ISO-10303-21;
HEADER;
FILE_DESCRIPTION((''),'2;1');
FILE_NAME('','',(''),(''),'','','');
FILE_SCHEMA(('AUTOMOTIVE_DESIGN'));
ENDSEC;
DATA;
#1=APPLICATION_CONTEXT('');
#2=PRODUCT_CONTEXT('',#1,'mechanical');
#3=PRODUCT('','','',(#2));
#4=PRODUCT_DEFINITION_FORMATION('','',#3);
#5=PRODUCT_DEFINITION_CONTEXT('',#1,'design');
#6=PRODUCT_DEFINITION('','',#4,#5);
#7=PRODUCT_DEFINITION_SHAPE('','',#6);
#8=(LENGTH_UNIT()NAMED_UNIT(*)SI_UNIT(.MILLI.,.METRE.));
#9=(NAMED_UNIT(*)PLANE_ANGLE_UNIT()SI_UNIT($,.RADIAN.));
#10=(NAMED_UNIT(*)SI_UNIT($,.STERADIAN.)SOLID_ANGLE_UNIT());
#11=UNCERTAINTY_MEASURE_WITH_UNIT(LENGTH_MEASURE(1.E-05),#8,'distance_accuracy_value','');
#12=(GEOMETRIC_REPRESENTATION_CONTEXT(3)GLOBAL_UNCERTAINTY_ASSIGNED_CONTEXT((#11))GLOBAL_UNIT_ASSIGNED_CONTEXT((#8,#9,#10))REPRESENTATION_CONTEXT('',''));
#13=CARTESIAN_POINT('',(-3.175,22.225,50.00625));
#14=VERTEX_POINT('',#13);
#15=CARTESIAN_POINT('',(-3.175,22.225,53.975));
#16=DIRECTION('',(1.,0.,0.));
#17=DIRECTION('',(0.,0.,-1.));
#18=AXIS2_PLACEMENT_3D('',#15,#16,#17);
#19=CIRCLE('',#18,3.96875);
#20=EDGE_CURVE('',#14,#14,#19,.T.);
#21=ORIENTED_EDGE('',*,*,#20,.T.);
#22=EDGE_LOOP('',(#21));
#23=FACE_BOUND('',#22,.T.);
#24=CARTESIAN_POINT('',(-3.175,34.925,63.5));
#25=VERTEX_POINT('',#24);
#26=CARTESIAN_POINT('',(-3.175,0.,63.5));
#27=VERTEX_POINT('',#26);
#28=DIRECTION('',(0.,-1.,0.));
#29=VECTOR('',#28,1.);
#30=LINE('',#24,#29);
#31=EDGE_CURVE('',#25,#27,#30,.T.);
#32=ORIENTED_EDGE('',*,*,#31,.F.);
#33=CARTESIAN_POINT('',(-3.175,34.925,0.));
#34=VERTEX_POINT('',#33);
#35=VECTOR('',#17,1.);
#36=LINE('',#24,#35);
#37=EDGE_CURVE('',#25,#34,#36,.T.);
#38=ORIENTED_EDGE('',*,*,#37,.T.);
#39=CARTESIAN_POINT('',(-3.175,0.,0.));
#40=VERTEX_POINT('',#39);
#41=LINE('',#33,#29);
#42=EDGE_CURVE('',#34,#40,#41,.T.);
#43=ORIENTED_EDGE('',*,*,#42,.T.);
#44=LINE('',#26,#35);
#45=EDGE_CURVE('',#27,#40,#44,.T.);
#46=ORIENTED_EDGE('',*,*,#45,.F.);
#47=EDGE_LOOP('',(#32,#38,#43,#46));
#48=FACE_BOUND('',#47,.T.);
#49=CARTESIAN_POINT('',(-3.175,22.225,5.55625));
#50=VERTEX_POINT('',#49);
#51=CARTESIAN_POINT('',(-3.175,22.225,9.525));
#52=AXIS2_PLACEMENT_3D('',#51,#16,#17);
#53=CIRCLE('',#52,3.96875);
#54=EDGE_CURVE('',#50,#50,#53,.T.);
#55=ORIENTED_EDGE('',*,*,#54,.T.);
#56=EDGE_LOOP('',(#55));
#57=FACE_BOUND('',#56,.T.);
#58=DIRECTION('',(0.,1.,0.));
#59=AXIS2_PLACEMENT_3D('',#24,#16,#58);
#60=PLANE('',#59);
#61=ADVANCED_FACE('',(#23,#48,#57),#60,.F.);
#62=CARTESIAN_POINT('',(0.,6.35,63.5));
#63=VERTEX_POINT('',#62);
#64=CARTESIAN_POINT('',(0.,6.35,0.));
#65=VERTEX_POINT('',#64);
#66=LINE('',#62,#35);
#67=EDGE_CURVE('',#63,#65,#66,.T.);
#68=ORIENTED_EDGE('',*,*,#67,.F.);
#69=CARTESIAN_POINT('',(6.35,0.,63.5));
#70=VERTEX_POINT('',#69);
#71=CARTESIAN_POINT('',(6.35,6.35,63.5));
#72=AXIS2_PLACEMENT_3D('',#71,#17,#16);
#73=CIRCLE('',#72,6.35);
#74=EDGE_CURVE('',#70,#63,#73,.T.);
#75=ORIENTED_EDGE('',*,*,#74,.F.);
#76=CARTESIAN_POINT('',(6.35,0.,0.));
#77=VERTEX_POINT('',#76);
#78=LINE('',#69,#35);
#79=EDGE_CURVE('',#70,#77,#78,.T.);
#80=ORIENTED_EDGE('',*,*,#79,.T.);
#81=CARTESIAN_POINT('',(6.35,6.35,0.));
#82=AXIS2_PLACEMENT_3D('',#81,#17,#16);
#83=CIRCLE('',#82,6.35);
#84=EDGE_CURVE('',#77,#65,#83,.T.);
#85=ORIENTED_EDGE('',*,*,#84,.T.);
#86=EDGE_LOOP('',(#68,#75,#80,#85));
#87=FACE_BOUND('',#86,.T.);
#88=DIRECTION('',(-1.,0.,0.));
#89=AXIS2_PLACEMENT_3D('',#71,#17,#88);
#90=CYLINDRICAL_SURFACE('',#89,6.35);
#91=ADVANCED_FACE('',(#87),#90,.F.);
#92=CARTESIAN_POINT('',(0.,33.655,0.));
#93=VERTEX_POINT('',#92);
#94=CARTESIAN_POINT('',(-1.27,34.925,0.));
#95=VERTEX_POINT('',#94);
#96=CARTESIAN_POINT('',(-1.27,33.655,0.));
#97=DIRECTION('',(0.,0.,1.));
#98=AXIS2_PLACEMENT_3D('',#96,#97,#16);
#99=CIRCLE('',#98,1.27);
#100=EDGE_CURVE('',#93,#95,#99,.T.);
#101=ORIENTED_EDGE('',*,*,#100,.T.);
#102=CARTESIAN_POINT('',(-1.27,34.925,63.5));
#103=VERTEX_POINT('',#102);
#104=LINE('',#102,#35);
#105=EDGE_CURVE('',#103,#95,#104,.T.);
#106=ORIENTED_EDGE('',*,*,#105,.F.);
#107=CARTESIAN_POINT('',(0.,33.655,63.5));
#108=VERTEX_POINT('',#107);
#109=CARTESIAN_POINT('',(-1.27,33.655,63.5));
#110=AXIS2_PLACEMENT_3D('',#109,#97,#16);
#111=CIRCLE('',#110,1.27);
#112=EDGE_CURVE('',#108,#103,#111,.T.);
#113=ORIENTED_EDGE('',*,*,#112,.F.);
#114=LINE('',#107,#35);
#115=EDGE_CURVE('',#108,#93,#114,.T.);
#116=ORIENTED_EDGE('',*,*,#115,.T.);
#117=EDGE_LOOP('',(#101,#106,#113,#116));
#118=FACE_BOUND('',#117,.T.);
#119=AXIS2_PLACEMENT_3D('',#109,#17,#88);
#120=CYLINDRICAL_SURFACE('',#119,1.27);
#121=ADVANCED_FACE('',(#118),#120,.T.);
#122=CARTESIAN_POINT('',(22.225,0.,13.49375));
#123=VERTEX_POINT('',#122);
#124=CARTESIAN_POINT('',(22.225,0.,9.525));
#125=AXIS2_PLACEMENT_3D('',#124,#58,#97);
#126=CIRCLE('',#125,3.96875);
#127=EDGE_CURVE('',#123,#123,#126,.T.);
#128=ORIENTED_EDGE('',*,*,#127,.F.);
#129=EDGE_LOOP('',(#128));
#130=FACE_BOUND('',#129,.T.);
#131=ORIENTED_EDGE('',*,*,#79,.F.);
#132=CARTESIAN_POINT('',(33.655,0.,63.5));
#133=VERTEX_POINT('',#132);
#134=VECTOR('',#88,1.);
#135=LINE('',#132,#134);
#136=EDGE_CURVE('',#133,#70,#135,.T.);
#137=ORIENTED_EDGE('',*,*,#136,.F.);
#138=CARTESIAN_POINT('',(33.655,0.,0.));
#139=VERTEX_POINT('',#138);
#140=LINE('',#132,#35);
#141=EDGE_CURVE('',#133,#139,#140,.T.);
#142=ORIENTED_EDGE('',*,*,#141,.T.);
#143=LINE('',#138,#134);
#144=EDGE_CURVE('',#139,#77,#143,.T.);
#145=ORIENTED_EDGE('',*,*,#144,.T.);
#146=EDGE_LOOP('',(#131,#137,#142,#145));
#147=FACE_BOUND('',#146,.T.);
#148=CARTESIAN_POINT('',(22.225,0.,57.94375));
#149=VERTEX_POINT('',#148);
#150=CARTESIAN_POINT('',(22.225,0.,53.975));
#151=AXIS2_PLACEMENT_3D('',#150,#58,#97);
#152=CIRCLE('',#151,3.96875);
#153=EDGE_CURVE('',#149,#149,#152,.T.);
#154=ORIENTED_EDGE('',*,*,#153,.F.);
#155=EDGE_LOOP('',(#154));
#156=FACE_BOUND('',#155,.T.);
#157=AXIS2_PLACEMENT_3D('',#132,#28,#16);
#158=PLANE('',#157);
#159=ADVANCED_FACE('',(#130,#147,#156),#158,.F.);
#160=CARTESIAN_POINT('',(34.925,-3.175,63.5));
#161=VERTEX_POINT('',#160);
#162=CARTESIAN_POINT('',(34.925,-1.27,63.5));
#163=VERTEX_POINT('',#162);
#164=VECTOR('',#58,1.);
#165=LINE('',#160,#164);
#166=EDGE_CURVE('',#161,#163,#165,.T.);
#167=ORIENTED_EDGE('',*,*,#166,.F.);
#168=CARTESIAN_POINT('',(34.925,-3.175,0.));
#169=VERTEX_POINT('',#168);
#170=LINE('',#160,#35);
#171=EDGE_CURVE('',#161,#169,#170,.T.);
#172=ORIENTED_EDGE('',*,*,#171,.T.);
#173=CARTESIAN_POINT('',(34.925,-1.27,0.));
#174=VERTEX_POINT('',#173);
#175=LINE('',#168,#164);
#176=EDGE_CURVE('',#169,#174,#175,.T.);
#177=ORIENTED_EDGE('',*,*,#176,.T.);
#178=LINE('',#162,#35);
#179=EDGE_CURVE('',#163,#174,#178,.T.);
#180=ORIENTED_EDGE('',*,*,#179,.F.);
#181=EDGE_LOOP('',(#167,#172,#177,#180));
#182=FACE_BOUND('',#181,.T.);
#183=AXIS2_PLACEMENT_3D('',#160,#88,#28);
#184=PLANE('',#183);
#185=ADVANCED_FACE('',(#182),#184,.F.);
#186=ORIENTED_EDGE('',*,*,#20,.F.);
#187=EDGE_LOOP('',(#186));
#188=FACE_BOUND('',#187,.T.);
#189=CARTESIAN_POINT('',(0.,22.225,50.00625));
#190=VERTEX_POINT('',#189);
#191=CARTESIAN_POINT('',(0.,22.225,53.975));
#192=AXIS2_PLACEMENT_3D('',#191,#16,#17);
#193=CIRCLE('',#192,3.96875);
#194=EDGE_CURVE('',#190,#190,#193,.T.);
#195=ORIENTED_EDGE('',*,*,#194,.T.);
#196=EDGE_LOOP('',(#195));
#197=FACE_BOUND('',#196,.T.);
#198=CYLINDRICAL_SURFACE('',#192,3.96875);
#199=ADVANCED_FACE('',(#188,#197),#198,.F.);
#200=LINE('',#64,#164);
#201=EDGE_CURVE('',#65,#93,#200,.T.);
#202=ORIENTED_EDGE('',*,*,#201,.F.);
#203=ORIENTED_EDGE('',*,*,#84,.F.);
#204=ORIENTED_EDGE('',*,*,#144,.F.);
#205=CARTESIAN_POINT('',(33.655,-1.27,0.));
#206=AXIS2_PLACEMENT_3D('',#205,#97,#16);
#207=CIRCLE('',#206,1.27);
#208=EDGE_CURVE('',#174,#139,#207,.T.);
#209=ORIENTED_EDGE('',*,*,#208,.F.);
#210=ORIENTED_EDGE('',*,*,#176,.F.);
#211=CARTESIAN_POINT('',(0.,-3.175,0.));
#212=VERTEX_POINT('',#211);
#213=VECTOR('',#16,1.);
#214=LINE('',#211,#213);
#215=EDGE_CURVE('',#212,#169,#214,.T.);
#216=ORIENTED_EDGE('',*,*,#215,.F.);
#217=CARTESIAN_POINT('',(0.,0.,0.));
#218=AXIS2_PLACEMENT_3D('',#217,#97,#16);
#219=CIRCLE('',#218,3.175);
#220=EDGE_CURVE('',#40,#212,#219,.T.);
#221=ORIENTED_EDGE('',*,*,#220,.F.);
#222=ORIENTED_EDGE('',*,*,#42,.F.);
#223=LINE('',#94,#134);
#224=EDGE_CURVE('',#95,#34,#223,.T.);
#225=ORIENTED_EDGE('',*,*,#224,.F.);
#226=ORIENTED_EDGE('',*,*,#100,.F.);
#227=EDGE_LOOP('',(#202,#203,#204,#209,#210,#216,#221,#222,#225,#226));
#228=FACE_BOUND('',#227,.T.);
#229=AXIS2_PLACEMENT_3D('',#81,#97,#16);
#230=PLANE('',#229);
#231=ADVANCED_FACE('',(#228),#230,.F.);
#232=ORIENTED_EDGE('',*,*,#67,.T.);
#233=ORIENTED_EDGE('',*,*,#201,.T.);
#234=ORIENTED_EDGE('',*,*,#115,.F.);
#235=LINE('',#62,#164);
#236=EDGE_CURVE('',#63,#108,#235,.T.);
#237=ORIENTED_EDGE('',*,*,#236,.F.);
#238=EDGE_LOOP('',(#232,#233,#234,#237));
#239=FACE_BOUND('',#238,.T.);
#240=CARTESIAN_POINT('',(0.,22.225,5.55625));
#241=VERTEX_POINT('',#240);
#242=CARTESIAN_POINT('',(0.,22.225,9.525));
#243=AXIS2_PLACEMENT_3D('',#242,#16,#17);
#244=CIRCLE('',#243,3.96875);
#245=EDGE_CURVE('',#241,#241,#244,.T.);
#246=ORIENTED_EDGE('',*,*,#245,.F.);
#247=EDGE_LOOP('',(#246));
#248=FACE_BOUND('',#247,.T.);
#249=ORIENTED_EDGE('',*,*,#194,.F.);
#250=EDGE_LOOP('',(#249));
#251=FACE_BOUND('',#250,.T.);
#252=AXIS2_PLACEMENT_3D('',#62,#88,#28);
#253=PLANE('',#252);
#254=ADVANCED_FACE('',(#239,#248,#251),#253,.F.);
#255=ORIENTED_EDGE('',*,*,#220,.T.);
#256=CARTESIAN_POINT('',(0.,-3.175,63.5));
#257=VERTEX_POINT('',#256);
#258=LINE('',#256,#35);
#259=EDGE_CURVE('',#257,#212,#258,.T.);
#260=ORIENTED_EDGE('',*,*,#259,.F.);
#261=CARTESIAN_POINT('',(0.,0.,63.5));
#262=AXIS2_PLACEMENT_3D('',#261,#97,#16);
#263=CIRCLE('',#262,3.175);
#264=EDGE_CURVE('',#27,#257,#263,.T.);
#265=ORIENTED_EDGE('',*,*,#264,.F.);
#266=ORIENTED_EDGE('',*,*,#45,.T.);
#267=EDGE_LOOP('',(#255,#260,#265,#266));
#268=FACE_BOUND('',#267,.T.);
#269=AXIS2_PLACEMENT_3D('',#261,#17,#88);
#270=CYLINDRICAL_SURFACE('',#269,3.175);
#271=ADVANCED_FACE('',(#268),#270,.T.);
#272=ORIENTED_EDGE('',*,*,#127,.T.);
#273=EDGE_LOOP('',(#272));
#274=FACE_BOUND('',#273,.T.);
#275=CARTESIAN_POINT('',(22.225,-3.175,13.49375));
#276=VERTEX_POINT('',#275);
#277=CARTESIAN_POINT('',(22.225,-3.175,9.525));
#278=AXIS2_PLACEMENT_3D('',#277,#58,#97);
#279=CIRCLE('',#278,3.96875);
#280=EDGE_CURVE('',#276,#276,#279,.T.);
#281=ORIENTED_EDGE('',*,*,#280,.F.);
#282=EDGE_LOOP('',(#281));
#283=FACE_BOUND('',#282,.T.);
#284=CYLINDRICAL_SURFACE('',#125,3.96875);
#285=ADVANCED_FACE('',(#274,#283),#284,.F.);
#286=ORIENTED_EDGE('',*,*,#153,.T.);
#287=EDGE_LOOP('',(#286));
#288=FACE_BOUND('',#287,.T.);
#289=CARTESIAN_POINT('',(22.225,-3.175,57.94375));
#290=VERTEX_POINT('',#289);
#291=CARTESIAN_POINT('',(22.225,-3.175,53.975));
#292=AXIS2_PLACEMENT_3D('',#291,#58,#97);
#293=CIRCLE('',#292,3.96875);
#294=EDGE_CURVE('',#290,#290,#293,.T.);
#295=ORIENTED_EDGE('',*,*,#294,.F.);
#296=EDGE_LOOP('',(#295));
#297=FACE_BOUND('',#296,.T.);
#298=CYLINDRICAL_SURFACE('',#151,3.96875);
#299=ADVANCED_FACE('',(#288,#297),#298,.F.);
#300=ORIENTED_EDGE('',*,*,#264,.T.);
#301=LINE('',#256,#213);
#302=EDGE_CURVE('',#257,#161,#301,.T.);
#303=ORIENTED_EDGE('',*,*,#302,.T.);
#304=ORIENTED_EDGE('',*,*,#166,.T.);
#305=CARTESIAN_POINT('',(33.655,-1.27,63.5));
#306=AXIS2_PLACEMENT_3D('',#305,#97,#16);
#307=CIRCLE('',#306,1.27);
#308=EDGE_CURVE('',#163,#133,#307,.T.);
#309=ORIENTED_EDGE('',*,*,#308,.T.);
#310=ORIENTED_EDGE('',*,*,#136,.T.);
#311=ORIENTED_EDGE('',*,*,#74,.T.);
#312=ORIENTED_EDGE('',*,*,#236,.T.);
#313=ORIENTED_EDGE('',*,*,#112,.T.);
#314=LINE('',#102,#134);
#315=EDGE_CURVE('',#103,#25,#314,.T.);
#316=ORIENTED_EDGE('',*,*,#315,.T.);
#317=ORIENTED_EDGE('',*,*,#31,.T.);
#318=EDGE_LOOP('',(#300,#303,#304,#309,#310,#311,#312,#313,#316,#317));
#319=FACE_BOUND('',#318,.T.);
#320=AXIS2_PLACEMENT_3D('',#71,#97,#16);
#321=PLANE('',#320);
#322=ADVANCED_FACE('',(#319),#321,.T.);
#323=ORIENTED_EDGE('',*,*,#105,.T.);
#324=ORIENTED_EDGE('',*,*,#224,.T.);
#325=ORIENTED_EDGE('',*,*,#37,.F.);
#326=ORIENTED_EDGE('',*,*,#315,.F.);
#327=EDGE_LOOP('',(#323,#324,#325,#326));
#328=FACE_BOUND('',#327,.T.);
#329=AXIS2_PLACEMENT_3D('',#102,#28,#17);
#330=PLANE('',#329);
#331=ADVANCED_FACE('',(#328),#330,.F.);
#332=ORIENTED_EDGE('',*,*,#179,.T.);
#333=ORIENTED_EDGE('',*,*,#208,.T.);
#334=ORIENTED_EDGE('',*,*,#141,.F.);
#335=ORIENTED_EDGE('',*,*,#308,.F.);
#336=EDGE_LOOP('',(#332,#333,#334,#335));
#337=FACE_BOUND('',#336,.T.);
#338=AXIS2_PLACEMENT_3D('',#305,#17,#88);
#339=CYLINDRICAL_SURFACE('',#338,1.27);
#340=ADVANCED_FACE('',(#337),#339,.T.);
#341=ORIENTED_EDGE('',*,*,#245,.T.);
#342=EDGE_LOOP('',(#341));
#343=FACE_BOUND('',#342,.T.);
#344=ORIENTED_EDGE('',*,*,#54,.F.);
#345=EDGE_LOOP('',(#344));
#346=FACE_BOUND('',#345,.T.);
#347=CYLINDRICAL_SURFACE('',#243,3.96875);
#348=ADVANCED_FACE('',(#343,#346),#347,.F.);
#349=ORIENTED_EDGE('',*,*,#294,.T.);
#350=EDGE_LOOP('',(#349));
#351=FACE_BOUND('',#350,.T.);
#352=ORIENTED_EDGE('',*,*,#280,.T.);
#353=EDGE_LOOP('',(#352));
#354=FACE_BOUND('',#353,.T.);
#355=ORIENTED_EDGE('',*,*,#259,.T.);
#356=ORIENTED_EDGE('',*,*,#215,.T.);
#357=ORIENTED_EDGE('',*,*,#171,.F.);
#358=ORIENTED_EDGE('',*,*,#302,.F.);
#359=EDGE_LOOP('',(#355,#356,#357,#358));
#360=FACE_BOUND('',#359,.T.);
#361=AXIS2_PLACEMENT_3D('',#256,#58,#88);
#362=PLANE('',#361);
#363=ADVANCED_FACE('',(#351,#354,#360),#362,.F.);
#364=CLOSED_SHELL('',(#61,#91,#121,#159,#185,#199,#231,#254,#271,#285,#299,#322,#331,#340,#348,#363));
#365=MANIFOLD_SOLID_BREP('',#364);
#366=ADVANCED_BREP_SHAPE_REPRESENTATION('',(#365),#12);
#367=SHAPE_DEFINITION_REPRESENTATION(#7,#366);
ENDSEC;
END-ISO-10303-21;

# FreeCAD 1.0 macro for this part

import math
import FreeCAD as App
import Part
import Sketcher
Q = App.Units.Quantity

doc = App.newDocument("Part")
params = doc.addObject("Spreadsheet::Sheet", "Params")
for row, (alias, value) in enumerate([
    ("sketch1_radius", "0.05 in"),
    ("sketch1_radius2", "0.25 in"),
    ("sketch1_radius3", "0.125 in"),
    ("pad1_length", "2.5 in"),
    ("sketch2_diameter", "0.3125 in"),
    ("hole_diameter", "0.3125 in"),
    ("sketch3_diameter", "0.3125 in"),
    ("hole2_diameter", "0.3125 in"),
], start=1):
    params.set(f"A{row}", alias)
    params.set(f"B{row}", "=" + value)
    params.setAlias(f"B{row}", alias)

body = doc.addObject("PartDesign::Body", "Body")

# Sketch on XY plane
sketch1 = body.newObject("Sketcher::SketchObject", "Sketch")
sketch1.AttachmentSupport = (doc.getObject("XY_Plane"), [""])
sketch1.MapMode = "FlatFace"
sketch1.addGeometry(Part.LineSegment(App.Vector(0, 6.3, 0), App.Vector(0, 33.7, 0)), False)
sketch1.addGeometry(Part.ArcOfCircle(Part.Circle(App.Vector(-1.3, 33.7, 0), App.Vector(0, 0, 1), 1.3), math.radians(0), math.radians(90)), False)
sketch1.addGeometry(Part.LineSegment(App.Vector(-1.3, 34.9, 0), App.Vector(-3.2, 34.9, 0)), False)
sketch1.addGeometry(Part.LineSegment(App.Vector(-3.2, 34.9, 0), App.Vector(-3.2, 0, 0)), False)
sketch1.addGeometry(Part.ArcOfCircle(Part.Circle(App.Vector(0, 0, 0), App.Vector(0, 0, 1), 3.2), math.radians(-180), math.radians(-90)), False)
sketch1.addGeometry(Part.LineSegment(App.Vector(0, -3.2, 0), App.Vector(34.9, -3.2, 0)), False)
sketch1.addGeometry(Part.LineSegment(App.Vector(34.9, -3.2, 0), App.Vector(34.9, -1.3, 0)), False)
sketch1.addGeometry(Part.ArcOfCircle(Part.Circle(App.Vector(33.7, -1.3, 0), App.Vector(0, 0, 1), 1.3), math.radians(0), math.radians(90)), False)
sketch1.addGeometry(Part.LineSegment(App.Vector(33.7, 0, 0), App.Vector(6.3, 0, 0)), False)
sketch1.addGeometry(Part.ArcOfCircle(Part.Circle(App.Vector(6.3, 6.3, 0), App.Vector(0, 0, 1), 6.3), math.radians(180), math.radians(270)), False)
sketch1.addConstraint(Sketcher.Constraint("Tangent", 0, 2, 1, 1))
sketch1.addConstraint(Sketcher.Constraint("Tangent", 1, 2, 2, 1))
sketch1.addConstraint(Sketcher.Constraint("Coincident", 2, 2, 3, 1))
sketch1.addConstraint(Sketcher.Constraint("Tangent", 3, 2, 4, 1))
sketch1.addConstraint(Sketcher.Constraint("Tangent", 4, 2, 5, 1))
sketch1.addConstraint(Sketcher.Constraint("Coincident", 5, 2, 6, 1))
sketch1.addConstraint(Sketcher.Constraint("Tangent", 6, 2, 7, 1))
sketch1.addConstraint(Sketcher.Constraint("Tangent", 7, 2, 8, 1))
sketch1.addConstraint(Sketcher.Constraint("Tangent", 8, 2, 9, 2))
sketch1.addConstraint(Sketcher.Constraint("Tangent", 9, 1, 0, 1))
sketch1.addConstraint(Sketcher.Constraint("Vertical", 0))
sketch1.addConstraint(Sketcher.Constraint("Horizontal", 2))
sketch1.addConstraint(Sketcher.Constraint("Vertical", 3))
sketch1.addConstraint(Sketcher.Constraint("Horizontal", 5))
sketch1.addConstraint(Sketcher.Constraint("Vertical", 6))
sketch1.addConstraint(Sketcher.Constraint("Horizontal", 8))
sketch1.addConstraint(Sketcher.Constraint("Coincident", 4, 3, -1, 1))
sketch1.addConstraint(Sketcher.Constraint("Equal", 1, 7))
sketch1.addConstraint(Sketcher.Constraint("PointOnObject", 0, 2, -2))
sketch1.addConstraint(Sketcher.Constraint("PointOnObject", 7, 2, -1))
sketch1.addConstraint(Sketcher.Constraint("Equal", 8, 0))
sketch1.addConstraint(Sketcher.Constraint("Radius", 1, Q("0.05 in")))
sketch1.addConstraint(Sketcher.Constraint("Radius", 9, Q("0.25 in")))
sketch1.addConstraint(Sketcher.Constraint("Radius", 4, Q("0.125 in")))
sketch1.addConstraint(Sketcher.Constraint("DistanceX", 3, 2, 5, 2, Q("1.5 in")))
sketch1.setExpression("Constraints[21]", "Params.sketch1_radius")
sketch1.setExpression("Constraints[22]", "Params.sketch1_radius2")
sketch1.setExpression("Constraints[23]", "Params.sketch1_radius3")
pad1 = body.newObject("PartDesign::Pad", "Pad")
pad1.Profile = sketch1
pad1.setExpression("Length", "Params.pad1_length")

# Sketch on XZ plane
sketch2 = body.newObject("Sketcher::SketchObject", "Sketch001")
sketch2.AttachmentSupport = (doc.getObject("XZ_Plane"), [""])
sketch2.MapMode = "FlatFace"
sketch2.addGeometry(Part.Circle(App.Vector(22.2, 54, 0), App.Vector(0, 0, 1), 4), False)
sketch2.addGeometry(Part.Circle(App.Vector(22.2, 9.5, 0), App.Vector(0, 0, 1), 4), False)
sketch2.addConstraint(Sketcher.Constraint("Equal", 0, 1))
sketch2.addConstraint(Sketcher.Constraint("Vertical", 0, 3, 1, 3))
sketch2.addConstraint(Sketcher.Constraint("Diameter", 0, Q("0.3125 in")))
sketch2.addConstraint(Sketcher.Constraint("DistanceY", 1, 3, 0, 3, Q("1.75 in")))
sketch2.addConstraint(Sketcher.Constraint("DistanceX", -1, 1, 0, 3, Q("0.875 in")))
sketch2.addConstraint(Sketcher.Constraint("DistanceY", -1, 1, 0, 3, Q("2.125 in")))
sketch2.setExpression("Constraints[2]", "Params.sketch2_diameter")
doc.recompute()
hole = body.newObject("PartDesign::Hole", "Hole")
hole.Profile = sketch2
hole.ThreadType = "None"
hole.setExpression("Diameter", "Params.hole_diameter")
hole.DepthType = "ThroughAll"
hole.Reversed = True

# Sketch on YZ plane
sketch3 = body.newObject("Sketcher::SketchObject", "Sketch002")
sketch3.AttachmentSupport = (doc.getObject("YZ_Plane"), [""])
sketch3.MapMode = "FlatFace"
sketch3.addGeometry(Part.Circle(App.Vector(22.2, 9.5, 0), App.Vector(0, 0, 1), 4), False)
sketch3.addGeometry(Part.Circle(App.Vector(22.2, 54, 0), App.Vector(0, 0, 1), 4), False)
sketch3.addConstraint(Sketcher.Constraint("Equal", 0, 1))
sketch3.addConstraint(Sketcher.Constraint("Vertical", 0, 3, 1, 3))
sketch3.addConstraint(Sketcher.Constraint("Diameter", 0, Q("0.3125 in")))
sketch3.addConstraint(Sketcher.Constraint("DistanceY", 0, 3, 1, 3, Q("1.75 in")))
sketch3.addConstraint(Sketcher.Constraint("DistanceX", -1, 1, 0, 3, Q("0.875 in")))
sketch3.addConstraint(Sketcher.Constraint("DistanceY", -1, 1, 0, 3, Q("0.375 in")))
sketch3.setExpression("Constraints[2]", "Params.sketch3_diameter")
doc.recompute()
hole2 = body.newObject("PartDesign::Hole", "Hole001")
hole2.Profile = sketch3
hole2.ThreadType = "None"
hole2.setExpression("Diameter", "Params.hole2_diameter")
hole2.DepthType = "ThroughAll"

doc.recompute()
